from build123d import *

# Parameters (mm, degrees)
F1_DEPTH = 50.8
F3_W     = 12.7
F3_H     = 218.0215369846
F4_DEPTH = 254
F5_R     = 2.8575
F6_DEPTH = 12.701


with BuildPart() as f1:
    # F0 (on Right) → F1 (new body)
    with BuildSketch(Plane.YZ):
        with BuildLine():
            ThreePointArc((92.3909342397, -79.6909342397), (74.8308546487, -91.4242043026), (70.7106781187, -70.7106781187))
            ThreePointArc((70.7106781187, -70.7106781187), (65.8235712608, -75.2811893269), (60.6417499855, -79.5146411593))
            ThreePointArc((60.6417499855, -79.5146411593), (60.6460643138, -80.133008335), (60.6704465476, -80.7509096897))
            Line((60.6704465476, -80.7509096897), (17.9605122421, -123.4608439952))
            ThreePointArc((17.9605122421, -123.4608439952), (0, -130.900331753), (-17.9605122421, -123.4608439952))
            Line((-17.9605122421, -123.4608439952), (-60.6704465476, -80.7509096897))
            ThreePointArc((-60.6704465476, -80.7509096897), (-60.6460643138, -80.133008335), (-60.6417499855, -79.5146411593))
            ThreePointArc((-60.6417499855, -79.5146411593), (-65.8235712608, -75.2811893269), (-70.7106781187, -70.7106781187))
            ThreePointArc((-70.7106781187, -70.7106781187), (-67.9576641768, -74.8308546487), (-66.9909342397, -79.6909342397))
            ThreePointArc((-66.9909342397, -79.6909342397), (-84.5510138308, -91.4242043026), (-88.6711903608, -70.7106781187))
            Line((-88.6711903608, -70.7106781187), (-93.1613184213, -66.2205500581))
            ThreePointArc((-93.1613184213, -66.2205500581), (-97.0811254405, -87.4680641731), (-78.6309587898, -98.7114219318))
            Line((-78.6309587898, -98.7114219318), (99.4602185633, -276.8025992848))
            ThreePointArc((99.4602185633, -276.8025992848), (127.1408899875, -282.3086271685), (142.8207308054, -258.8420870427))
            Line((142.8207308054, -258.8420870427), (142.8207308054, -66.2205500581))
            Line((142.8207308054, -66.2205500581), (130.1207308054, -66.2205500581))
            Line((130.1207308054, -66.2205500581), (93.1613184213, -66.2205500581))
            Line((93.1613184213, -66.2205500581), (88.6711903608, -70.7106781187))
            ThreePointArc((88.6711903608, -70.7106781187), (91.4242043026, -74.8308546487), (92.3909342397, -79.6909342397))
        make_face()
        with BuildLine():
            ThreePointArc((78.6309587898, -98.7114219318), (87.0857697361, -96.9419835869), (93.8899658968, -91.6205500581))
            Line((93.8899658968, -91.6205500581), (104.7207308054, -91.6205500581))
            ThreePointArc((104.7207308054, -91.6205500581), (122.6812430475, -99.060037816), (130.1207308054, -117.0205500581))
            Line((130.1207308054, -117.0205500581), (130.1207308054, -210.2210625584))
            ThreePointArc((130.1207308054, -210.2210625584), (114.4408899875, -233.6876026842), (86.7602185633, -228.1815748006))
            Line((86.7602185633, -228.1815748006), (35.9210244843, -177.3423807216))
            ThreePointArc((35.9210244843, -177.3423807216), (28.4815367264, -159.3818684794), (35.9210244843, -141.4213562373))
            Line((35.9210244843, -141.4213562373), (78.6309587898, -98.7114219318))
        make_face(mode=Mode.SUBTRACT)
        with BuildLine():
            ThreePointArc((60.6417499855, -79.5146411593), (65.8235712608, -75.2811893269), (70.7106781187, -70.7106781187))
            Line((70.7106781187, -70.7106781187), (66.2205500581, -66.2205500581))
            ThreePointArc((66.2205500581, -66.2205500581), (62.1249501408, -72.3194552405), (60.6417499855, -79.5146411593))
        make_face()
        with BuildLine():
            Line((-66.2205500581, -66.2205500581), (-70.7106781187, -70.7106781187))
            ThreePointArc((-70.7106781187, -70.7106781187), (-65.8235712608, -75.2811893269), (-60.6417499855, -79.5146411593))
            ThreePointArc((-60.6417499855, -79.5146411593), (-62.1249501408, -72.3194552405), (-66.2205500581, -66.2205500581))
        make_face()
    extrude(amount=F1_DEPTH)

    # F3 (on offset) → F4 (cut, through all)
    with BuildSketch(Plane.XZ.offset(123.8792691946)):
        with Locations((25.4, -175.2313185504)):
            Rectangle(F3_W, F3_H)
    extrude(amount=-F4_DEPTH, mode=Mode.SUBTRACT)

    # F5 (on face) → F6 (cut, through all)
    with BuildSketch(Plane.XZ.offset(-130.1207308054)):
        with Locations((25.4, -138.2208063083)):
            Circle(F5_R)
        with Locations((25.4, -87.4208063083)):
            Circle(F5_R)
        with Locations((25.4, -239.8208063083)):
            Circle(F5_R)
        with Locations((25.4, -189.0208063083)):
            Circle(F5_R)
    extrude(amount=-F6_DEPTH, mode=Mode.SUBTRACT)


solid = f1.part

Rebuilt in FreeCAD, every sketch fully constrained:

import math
import FreeCAD as App
import Part
import Sketcher
Q = App.Units.Quantity

doc = App.newDocument("Part")
params = doc.addObject("Spreadsheet::Sheet", "Params")
for row, (alias, value) in enumerate([
    ("sketch1_radius", "1 in"),
    ("sketch1_radius2", "1 in"),
    ("sketch1_radius3", "1 in"),
    ("sketch1_radius4", "1 in"),
    ("sketch1_radius5", "1 in"),
    ("pad1_length", "2 in"),
    ("sketch2_width", "0.5 in"),
    ("pocket1_length", "10 in"),
    ("sketch3_diameter", "0.225 in"),
], start=1):
    params.set(f"A{row}", alias)
    params.set(f"B{row}", "=" + value)
    params.setAlias(f"B{row}", alias)

body = doc.addObject("PartDesign::Body", "Body")

sketch1 = body.newObject("Sketcher::SketchObject", "Sketch")
sketch1.AttachmentSupport = (doc.getObject("YZ_Plane"), [""])
sketch1.MapMode = "FlatFace"
sketch1.addGeometry([
    Part.ArcOfCircle(Part.Circle(App.Vector(79.690934, -79.690934, 0), App.Vector(0, 0, 1), 12.7), math.radians(135), math.radians(360)),
    Part.LineSegment(App.Vector(70.710678, -70.710678, 0), App.Vector(66.22055, -66.22055, 0)),
    Part.ArcOfCircle(Part.Circle(App.Vector(79.690934, -79.690934, 0), App.Vector(0, 0, 1), 19.05), math.radians(135), math.radians(179.469764)),
    Part.ArcOfCircle(Part.Circle(App.Vector(79.690934, -79.690934, 0), App.Vector(0, 0, 1), 19.05), math.radians(179.469764), math.radians(183.189685)),
    Part.LineSegment(App.Vector(60.670447, -80.75091, 0), App.Vector(17.960512, -123.460844, 0)),
    Part.ArcOfCircle(Part.Circle(App.Vector(0, -105.500332, 0), App.Vector(0, 0, 1), 25.4), math.radians(-135), math.radians(-45)),
    Part.LineSegment(App.Vector(-17.960512, -123.460844, 0), App.Vector(-60.670447, -80.75091, 0)),
    Part.ArcOfCircle(Part.Circle(App.Vector(-79.690934, -79.690934, 0), App.Vector(0, 0, 1), 19.05), math.radians(-3.189685), math.radians(0.530236)),
    Part.ArcOfCircle(Part.Circle(App.Vector(-79.690934, -79.690934, 0), App.Vector(0, 0, 1), 19.05), math.radians(0.530236), math.radians(45)),
    Part.LineSegment(App.Vector(-66.22055, -66.22055, 0), App.Vector(-70.710678, -70.710678, 0)),
    Part.ArcOfCircle(Part.Circle(App.Vector(-79.690934, -79.690934, 0), App.Vector(0, 0, 1), 12.7), math.radians(0), math.radians(45)),
    Part.ArcOfCircle(Part.Circle(App.Vector(-79.690934, -79.690934, 0), App.Vector(0, 0, 1), 12.7), math.radians(135), math.radians(360)),
    Part.LineSegment(App.Vector(-88.67119, -70.710678, 0), App.Vector(-93.161318, -66.22055, 0)),
    Part.ArcOfCircle(Part.Circle(App.Vector(-79.690934, -79.690934, 0), App.Vector(0, 0, 1), 19.05), math.radians(135), math.radians(273.189685)),
    Part.LineSegment(App.Vector(-78.630959, -98.711422, 0), App.Vector(99.460219, -276.802599, 0)),
    Part.ArcOfCircle(Part.Circle(App.Vector(117.420731, -258.842087, 0), App.Vector(0, 0, 1), 25.4), math.radians(-135), math.radians(0)),
    Part.LineSegment(App.Vector(142.820731, -258.842087, 0), App.Vector(142.820731, -66.22055, 0)),
    Part.LineSegment(App.Vector(142.820731, -66.22055, 0), App.Vector(93.161318, -66.22055, 0)),
    Part.LineSegment(App.Vector(93.161318, -66.22055, 0), App.Vector(88.67119, -70.710678, 0)),
    Part.ArcOfCircle(Part.Circle(App.Vector(79.690934, -79.690934, 0), App.Vector(0, 0, 1), 12.7), math.radians(0), math.radians(45)),
    Part.LineSegment(App.Vector(35.921024, -141.421356, 0), App.Vector(78.630959, -98.711422, 0)),
    Part.ArcOfCircle(Part.Circle(App.Vector(79.057701, -79.666202, 0), App.Vector(0, 0, 1), 19.05), math.radians(-91.283601), math.radians(-38.867743)),
    Part.LineSegment(App.Vector(93.889966, -91.62055, 0), App.Vector(104.720731, -91.62055, 0)),
    Part.ArcOfCircle(Part.Circle(App.Vector(104.720731, -117.02055, 0), App.Vector(0, 0, 1), 25.4), math.radians(0), math.radians(90)),
    Part.LineSegment(App.Vector(130.120731, -117.02055, 0), App.Vector(130.120731, -210.221063, 0)),
    Part.ArcOfCircle(Part.Circle(App.Vector(104.720731, -210.221063, 0), App.Vector(0, 0, 1), 25.4), math.radians(-135), math.radians(0)),
    Part.LineSegment(App.Vector(86.760219, -228.181575, 0), App.Vector(35.921024, -177.342381, 0)),
    Part.ArcOfCircle(Part.Circle(App.Vector(53.881537, -159.381868, 0), App.Vector(0, 0, 1), 25.4), math.radians(135), math.radians(225)),
], False)
sketch1.addConstraint([
    Sketcher.Constraint("Coincident", 0, 1, 1, 1),
    Sketcher.Constraint("Coincident", 1, 2, 2, 1),
    Sketcher.Constraint("Coincident", 2, 2, 3, 1),
    Sketcher.Constraint("Coincident", 3, 2, 4, 1),
    Sketcher.Constraint("Coincident", 4, 2, 5, 2),
    Sketcher.Constraint("Coincident", 5, 1, 6, 1),
    Sketcher.Constraint("Coincident", 6, 2, 7, 1),
    Sketcher.Constraint("Coincident", 7, 2, 8, 1),
    Sketcher.Constraint("Coincident", 8, 2, 9, 1),
    Sketcher.Constraint("Coincident", 9, 2, 10, 2),
    Sketcher.Constraint("Coincident", 10, 1, 11, 2),
    Sketcher.Constraint("Coincident", 11, 1, 12, 1),
    Sketcher.Constraint("Coincident", 12, 2, 13, 1),
    Sketcher.Constraint("Coincident", 13, 2, 14, 1),
    Sketcher.Constraint("Coincident", 14, 2, 15, 1),
    Sketcher.Constraint("Coincident", 15, 2, 16, 1),
    Sketcher.Constraint("Coincident", 16, 2, 17, 1),
    Sketcher.Constraint("Coincident", 17, 2, 18, 1),
    Sketcher.Constraint("Coincident", 18, 2, 19, 2),
    Sketcher.Constraint("Coincident", 19, 1, 0, 2),
    Sketcher.Constraint("Coincident", 20, 2, 21, 1),
    Sketcher.Constraint("Coincident", 21, 2, 22, 1),
    Sketcher.Constraint("Coincident", 22, 2, 23, 2),
    Sketcher.Constraint("Coincident", 23, 1, 24, 1),
    Sketcher.Constraint("Coincident", 24, 2, 25, 2),
    Sketcher.Constraint("Coincident", 25, 1, 26, 1),
    Sketcher.Constraint("Coincident", 26, 2, 27, 2),
    Sketcher.Constraint("Coincident", 27, 1, 20, 1),
    Sketcher.Constraint("Vertical", 16),
    Sketcher.Constraint("Horizontal", 17),
    Sketcher.Constraint("Horizontal", 22),
    Sketcher.Constraint("Vertical", 24),
    Sketcher.Constraint("Coincident", 2, 3, 0, 3),
    Sketcher.Constraint("Coincident", 3, 3, 0, 3),
    Sketcher.Constraint("Coincident", 8, 3, 7, 3),
    Sketcher.Constraint("Coincident", 10, 3, 7, 3),
    Sketcher.Constraint("Coincident", 11, 3, 7, 3),
    Sketcher.Constraint("Coincident", 13, 3, 7, 3),
    Sketcher.Constraint("Coincident", 19, 3, 0, 3),
    Sketcher.Constraint("PointOnObject", 5, 3, -2),
    Sketcher.Constraint("Radius", 5, Q("1 in")),
    Sketcher.Constraint("Radius", 15, Q("1 in")),
    Sketcher.Constraint("Radius", 23, Q("1 in")),
    Sketcher.Constraint("Radius", 25, Q("1 in")),
    Sketcher.Constraint("Radius", 27, Q("1 in")),
    Sketcher.Constraint("Radius", 0, Q("0.5 in")),
    Sketcher.Constraint("Radius", 10, Q("0.5 in")),
    Sketcher.Constraint("Radius", 2, Q("0.75 in")),
    Sketcher.Constraint("Radius", 7, Q("0.75 in")),
    Sketcher.Constraint("Radius", 13, Q("0.75 in")),
    Sketcher.Constraint("Radius", 21, Q("0.75 in")),
    Sketcher.Constraint("DistanceY", 23, 3, 16, 2, Q("2 in")),
    Sketcher.Constraint("DistanceX", 22, 2, 23, 1, Q("1 in")),
    Sketcher.Constraint("DistanceY", 23, 1, 22, 2, Q("1 in")),
    Sketcher.Constraint("DistanceX", 25, 3, 15, 3, Q("0.5 in")),
    Sketcher.Constraint("DistanceX", 25, 1, 14, 2, Q("0.5 in")),
    Sketcher.Constraint("Distance", 18, Q("0.25 in")),
    Sketcher.Constraint("DistanceX", -1, 1, 21, 3, Q("79.057701 mm")),
    Sketcher.Constraint("DistanceY", 14, 2, -1, 1, Q("276.802599 mm")),
    Sketcher.Constraint("DistanceX", 2, 2, 1, 2, Q("5.5788 mm")),
    Sketcher.Constraint("DistanceX", 8, 2, 7, 2, Q("5.5788 mm")),
    Sketcher.Constraint("Distance", 4, Q("60.400968 mm")),
    Sketcher.Constraint("Distance", 6, Q("60.400968 mm")),
    Sketcher.Constraint("Distance", 14, Q("251.858958 mm")),
    Sketcher.Constraint("Distance", 20, Q("60.400968 mm")),
    Sketcher.Constraint("DistanceX", 17, 2, 17, 1, Q("49.659412 mm")),
    Sketcher.Constraint("DistanceX", 22, 1, 22, 2, Q("10.830765 mm")),
    Sketcher.Constraint("DistanceY", 16, 1, 16, 2, Q("192.621537 mm")),
    Sketcher.Constraint("DistanceY", 24, 2, 24, 1, Q("93.200513 mm")),
    Sketcher.Constraint("DistanceY", 5, 3, -1, 1, Q("105.500332 mm")),
    Sketcher.Constraint("DistanceX", -1, 1, 15, 3, Q("117.420731 mm")),
    Sketcher.Constraint("DistanceY", 23, 3, -1, 1, Q("117.02055 mm")),
    Sketcher.Constraint("DistanceY", 27, 3, -1, 1, Q("159.381868 mm")),
    Sketcher.Constraint("DistanceX", -1, 1, 0, 1, Q("70.710678 mm")),
    Sketcher.Constraint("DistanceY", 0, 1, -1, 1, Q("70.710678 mm")),
    Sketcher.Constraint("DistanceX", -1, 1, 1, 2, Q("66.22055 mm")),
    Sketcher.Constraint("DistanceY", 3, 2, -1, 1, Q("80.75091 mm")),
    Sketcher.Constraint("DistanceY", 6, 2, -1, 1, Q("80.75091 mm")),
    Sketcher.Constraint("DistanceX", 7, 2, -1, 1, Q("60.64175 mm")),
    Sketcher.Constraint("DistanceY", 7, 2, -1, 1, Q("79.514641 mm")),
    Sketcher.Constraint("DistanceY", 8, 2, -1, 1, Q("66.22055 mm")),
    Sketcher.Constraint("DistanceX", 9, 2, -1, 1, Q("70.710678 mm")),
    Sketcher.Constraint("DistanceX", 11, 1, -1, 1, Q("88.67119 mm")),
    Sketcher.Constraint("DistanceX", 12, 2, -1, 1, Q("93.161318 mm")),
    Sketcher.Constraint("DistanceX", 13, 2, -1, 1, Q("78.630959 mm")),
    Sketcher.Constraint("DistanceX", -1, 1, 18, 2, Q("88.67119 mm")),
    Sketcher.Constraint("DistanceX", -1, 1, 20, 2, Q("78.630959 mm")),
    Sketcher.Constraint("DistanceY", 26, 2, -1, 1, Q("177.342381 mm")),
    Sketcher.Constraint("DistanceY", 25, 3, 0, 3, Q("130.530128 mm")),
    Sketcher.Constraint("DistanceX", 27, 3, 14, 2, Q("45.578682 mm")),
    Sketcher.Constraint("DistanceY", 10, 1, -1, 1, Q("79.690934 mm")),
    Sketcher.Constraint("DistanceY", 19, 1, -1, 1, Q("79.690934 mm")),
])
sketch1.setExpression("Constraints[40]", "Params.sketch1_radius")
sketch1.setExpression("Constraints[41]", "Params.sketch1_radius2")
sketch1.setExpression("Constraints[42]", "Params.sketch1_radius3")
sketch1.setExpression("Constraints[43]", "Params.sketch1_radius4")
sketch1.setExpression("Constraints[44]", "Params.sketch1_radius5")
pad1 = body.newObject("PartDesign::Pad", "Pad")
pad1.Profile = sketch1
pad1.setExpression("Length", "Params.pad1_length")

sketch2 = body.newObject("Sketcher::SketchObject", "Sketch001")
sketch2.AttachmentSupport = (doc.getObject("XZ_Plane"), [""])
sketch2.MapMode = "FlatFace"
sketch2.AttachmentOffset = App.Placement(App.Vector(0, 0, 123.879269), App.Rotation())
sketch2.addGeometry([
    Part.LineSegment(App.Vector(19, -66, 0), App.Vector(19, -284, 0)),
    Part.LineSegment(App.Vector(19, -284, 0), App.Vector(32, -284, 0)),
    Part.LineSegment(App.Vector(32, -284, 0), App.Vector(32, -66, 0)),
    Part.LineSegment(App.Vector(32, -66, 0), App.Vector(19, -66, 0)),
], False)
sketch2.addConstraint([
    Sketcher.Constraint("Coincident", 0, 2, 1, 1),
    Sketcher.Constraint("Coincident", 1, 2, 2, 1),
    Sketcher.Constraint("Coincident", 2, 2, 3, 1),
    Sketcher.Constraint("Coincident", 3, 2, 0, 1),
    Sketcher.Constraint("Vertical", 0),
    Sketcher.Constraint("Horizontal", 1),
    Sketcher.Constraint("Vertical", 2),
    Sketcher.Constraint("Horizontal", 3),
    Sketcher.Constraint("DistanceX", 1, 1, 1, 2, Q("0.5 in")),
    Sketcher.Constraint("DistanceX", -1, 1, 0, 2, Q("0.75 in")),
    Sketcher.Constraint("DistanceY", 0, 2, 0, 1, Q("218.021537 mm")),
    Sketcher.Constraint("DistanceY", 2, 2, -1, 1, Q("66.22055 mm")),
])
sketch2.setExpression("Constraints[8]", "Params.sketch2_width")
pocket1 = body.newObject("PartDesign::Pocket", "Pocket")
pocket1.Profile = sketch2
pocket1.setExpression("Length", "Params.pocket1_length")

sketch3 = body.newObject("Sketcher::SketchObject", "Sketch002")
sketch3.AttachmentSupport = (doc.getObject("XZ_Plane"), [""])
sketch3.MapMode = "FlatFace"
sketch3.AttachmentOffset = App.Placement(App.Vector(0, 0, -130.120731), App.Rotation())
sketch3.addGeometry([
    Part.Circle(App.Vector(25.4, -138.2, 0), App.Vector(0, 0, 1), 2.9),
    Part.Circle(App.Vector(25.4, -87.4, 0), App.Vector(0, 0, 1), 2.9),
    Part.Circle(App.Vector(25.4, -239.8, 0), App.Vector(0, 0, 1), 2.9),
    Part.Circle(App.Vector(25.4, -189, 0), App.Vector(0, 0, 1), 2.9),
], False)
sketch3.addConstraint([
    Sketcher.Constraint("Equal", 0, 1),
    Sketcher.Constraint("Equal", 1, 2),
    Sketcher.Constraint("Equal", 2, 3),
    Sketcher.Constraint("Vertical", 0, 3, 1, 3),
    Sketcher.Constraint("Vertical", 1, 3, 2, 3),
    Sketcher.Constraint("Vertical", 2, 3, 3, 3),
    Sketcher.Constraint("Diameter", 0, Q("0.225 in")),
    Sketcher.Constraint("DistanceX", -1, 1, 0, 3, Q("1 in")),
    Sketcher.Constraint("DistanceY", 0, 3, 1, 3, Q("2 in")),
    Sketcher.Constraint("DistanceY", 2, 3, 0, 3, Q("4 in")),
    Sketcher.Constraint("DistanceY", 2, 3, 3, 3, Q("2 in")),
    Sketcher.Constraint("DistanceY", 0, 3, -1, 1, Q("138.220806 mm")),
])
sketch3.setExpression("Constraints[6]", "Params.sketch3_diameter")
pocket2 = body.newObject("PartDesign::Pocket", "Pocket001")
pocket2.Profile = sketch3
pocket2.Type = "ThroughAll"

doc.recompute()
